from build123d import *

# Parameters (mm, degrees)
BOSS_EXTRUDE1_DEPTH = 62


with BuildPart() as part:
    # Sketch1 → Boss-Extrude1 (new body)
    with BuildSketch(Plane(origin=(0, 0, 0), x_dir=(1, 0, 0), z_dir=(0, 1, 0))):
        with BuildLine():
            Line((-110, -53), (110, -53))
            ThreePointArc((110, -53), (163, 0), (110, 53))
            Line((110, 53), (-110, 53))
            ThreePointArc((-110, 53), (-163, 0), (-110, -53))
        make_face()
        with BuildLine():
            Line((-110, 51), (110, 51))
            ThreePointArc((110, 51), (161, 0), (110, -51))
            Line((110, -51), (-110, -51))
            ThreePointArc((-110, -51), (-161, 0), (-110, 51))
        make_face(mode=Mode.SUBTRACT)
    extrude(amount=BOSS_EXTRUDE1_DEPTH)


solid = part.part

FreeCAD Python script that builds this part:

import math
import FreeCAD as App
import Part
import Sketcher

V = App.Vector
Q = App.Units.Quantity

doc = App.newDocument("Part")
body = doc.addObject("PartDesign::Body", "Body")

# Sketch on XZ plane
sketch1 = body.newObject("Sketcher::SketchObject", "Sketch")
sketch1.AttachmentSupport = (doc.getObject("XZ_Plane"), [""])
sketch1.MapMode = "FlatFace"
sketch1.addGeometry(Part.LineSegment(V(-110, 53, 0), V(110, 53, 0)), False)
sketch1.addGeometry(Part.ArcOfCircle(Part.Circle(V(110, 0, 0), V(0, 0, 1), 53), math.radians(-90), math.radians(90)), False)
sketch1.addGeometry(Part.LineSegment(V(110, -53, 0), V(-110, -53, 0)), False)
sketch1.addGeometry(Part.ArcOfCircle(Part.Circle(V(-110, 0, 0), V(0, 0, 1), 53), math.radians(90), math.radians(270)), False)
sketch1.addGeometry(Part.ArcOfCircle(Part.Circle(V(-110, 0, 0), V(0, 0, 1), 51), math.radians(90), math.radians(270)), False)
sketch1.addGeometry(Part.LineSegment(V(-110, -51, 0), V(110, -51, 0)), False)
sketch1.addGeometry(Part.ArcOfCircle(Part.Circle(V(110, 0, 0), V(0, 0, 1), 51), math.radians(-90), math.radians(90)), False)
sketch1.addGeometry(Part.LineSegment(V(110, 51, 0), V(-110, 51, 0)), False)
sketch1.addConstraint(Sketcher.Constraint("Tangent", 0, 2, 1, 2))
sketch1.addConstraint(Sketcher.Constraint("Tangent", 1, 1, 2, 1))
sketch1.addConstraint(Sketcher.Constraint("Tangent", 2, 2, 3, 2))
sketch1.addConstraint(Sketcher.Constraint("Tangent", 3, 1, 0, 1))
sketch1.addConstraint(Sketcher.Constraint("Tangent", 4, 2, 5, 1))
sketch1.addConstraint(Sketcher.Constraint("Tangent", 5, 2, 6, 1))
sketch1.addConstraint(Sketcher.Constraint("Tangent", 6, 2, 7, 1))
sketch1.addConstraint(Sketcher.Constraint("Tangent", 7, 2, 4, 1))
sketch1.addConstraint(Sketcher.Constraint("Horizontal", 0))
sketch1.addConstraint(Sketcher.Constraint("Horizontal", 2))
sketch1.addConstraint(Sketcher.Constraint("Horizontal", 5))
sketch1.addConstraint(Sketcher.Constraint("Horizontal", 7))
sketch1.addConstraint(Sketcher.Constraint("Coincident", 4, 3, 3, 3))
sketch1.addConstraint(Sketcher.Constraint("Symmetric", 1, 3, 3, 3, -1, 1))
sketch1.addConstraint(Sketcher.Constraint("Vertical", 6, 3, 0, 2))
sketch1.addConstraint(Sketcher.Constraint("Radius", 1, Q("53 mm")))
sketch1.addConstraint(Sketcher.Constraint("Radius", 4, Q("51 mm")))
sketch1.addConstraint(Sketcher.Constraint("DistanceX", 0, 1, 0, 2, Q("220 mm")))
pad1 = body.newObject("PartDesign::Pad", "Pad")
pad1.Profile = sketch1
pad1.Length = 62
pad1.Reversed = True

doc.recompute()
